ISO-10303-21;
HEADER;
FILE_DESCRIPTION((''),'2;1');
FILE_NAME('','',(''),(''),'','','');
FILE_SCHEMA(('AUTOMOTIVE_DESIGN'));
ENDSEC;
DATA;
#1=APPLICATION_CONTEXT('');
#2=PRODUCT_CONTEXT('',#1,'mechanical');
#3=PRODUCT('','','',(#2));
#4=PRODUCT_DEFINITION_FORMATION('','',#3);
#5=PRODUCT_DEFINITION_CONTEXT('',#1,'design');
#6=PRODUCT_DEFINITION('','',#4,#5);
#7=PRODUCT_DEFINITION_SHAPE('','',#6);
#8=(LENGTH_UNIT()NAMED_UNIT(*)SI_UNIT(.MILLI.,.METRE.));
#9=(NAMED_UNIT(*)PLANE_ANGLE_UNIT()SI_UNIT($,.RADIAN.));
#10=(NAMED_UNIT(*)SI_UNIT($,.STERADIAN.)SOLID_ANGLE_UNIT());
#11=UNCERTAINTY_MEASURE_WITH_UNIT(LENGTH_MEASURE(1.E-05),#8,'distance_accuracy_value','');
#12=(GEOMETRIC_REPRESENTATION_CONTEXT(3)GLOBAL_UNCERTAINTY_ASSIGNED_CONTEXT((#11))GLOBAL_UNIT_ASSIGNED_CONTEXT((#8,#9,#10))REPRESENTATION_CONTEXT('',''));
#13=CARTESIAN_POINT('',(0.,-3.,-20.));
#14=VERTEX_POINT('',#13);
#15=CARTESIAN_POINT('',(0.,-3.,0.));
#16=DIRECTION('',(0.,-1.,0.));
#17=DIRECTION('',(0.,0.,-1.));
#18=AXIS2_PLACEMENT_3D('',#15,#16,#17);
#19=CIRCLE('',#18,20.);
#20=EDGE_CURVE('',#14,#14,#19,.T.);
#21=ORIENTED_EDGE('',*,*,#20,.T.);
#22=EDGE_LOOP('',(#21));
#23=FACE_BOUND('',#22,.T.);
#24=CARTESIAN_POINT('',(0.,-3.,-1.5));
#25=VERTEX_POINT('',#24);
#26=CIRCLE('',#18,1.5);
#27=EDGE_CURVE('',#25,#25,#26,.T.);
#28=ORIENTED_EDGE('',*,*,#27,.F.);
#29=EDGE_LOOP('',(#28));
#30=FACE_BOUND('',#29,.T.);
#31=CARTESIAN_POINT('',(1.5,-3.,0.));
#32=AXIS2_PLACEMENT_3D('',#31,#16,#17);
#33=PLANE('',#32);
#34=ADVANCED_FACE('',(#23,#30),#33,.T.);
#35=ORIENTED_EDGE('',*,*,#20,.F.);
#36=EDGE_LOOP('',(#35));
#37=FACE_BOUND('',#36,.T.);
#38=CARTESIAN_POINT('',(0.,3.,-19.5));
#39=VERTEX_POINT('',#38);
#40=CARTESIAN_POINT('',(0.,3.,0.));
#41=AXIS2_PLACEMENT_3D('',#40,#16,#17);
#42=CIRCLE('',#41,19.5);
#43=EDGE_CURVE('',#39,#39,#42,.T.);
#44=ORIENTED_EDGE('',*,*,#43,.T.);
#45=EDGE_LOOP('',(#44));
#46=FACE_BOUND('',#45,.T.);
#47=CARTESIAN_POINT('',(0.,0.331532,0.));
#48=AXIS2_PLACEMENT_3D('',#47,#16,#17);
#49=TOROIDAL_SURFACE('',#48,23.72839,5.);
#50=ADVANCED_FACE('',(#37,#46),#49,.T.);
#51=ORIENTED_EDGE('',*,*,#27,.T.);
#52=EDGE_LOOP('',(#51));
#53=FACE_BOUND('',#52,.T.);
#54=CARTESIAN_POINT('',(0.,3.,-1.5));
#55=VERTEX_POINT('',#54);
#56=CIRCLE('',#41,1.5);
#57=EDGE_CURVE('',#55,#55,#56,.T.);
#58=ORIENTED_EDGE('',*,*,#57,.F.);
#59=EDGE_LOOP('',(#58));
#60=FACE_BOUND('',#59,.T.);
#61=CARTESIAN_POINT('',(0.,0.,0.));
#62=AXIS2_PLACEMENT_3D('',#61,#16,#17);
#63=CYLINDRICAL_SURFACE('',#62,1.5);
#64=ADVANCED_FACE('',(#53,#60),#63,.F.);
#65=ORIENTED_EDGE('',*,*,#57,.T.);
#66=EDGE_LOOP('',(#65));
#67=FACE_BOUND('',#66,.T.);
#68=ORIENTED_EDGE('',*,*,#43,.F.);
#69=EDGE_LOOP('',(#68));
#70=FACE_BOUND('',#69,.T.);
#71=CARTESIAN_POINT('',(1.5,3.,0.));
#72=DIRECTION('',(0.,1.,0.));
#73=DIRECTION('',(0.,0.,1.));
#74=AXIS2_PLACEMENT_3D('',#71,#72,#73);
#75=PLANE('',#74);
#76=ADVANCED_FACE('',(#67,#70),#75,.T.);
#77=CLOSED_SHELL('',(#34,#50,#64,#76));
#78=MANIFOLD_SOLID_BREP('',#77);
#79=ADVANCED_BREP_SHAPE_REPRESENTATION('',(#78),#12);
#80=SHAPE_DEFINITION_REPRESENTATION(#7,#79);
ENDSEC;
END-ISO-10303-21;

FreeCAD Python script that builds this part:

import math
import FreeCAD as App
import Part
import Sketcher

V = App.Vector
Q = App.Units.Quantity

doc = App.newDocument("Part")
body = doc.addObject("PartDesign::Body", "Body")

# Sketch on XY plane
sketch1 = doc.addObject("Sketcher::SketchObject", "Sketch")
body.addObject(sketch1)
sketch1.AttachmentSupport = (doc.XY_Plane, [""])
sketch1.MapMode = "FlatFace"
sketch1.addGeometry([
    Part.LineSegment(V(2, -3, 0), V(20, -3, 0)),
    Part.ArcOfCircle(Part.Circle(V(24, 0, 0), V(0, 0, 1), 5), math.radians(-138), math.radians(148)),
    Part.LineSegment(V(20, 3, 0), V(2, 3, 0)),
    Part.LineSegment(V(2, 3, 0), V(2, -3, 0)),
], False)
sketch1.addConstraint([
    Sketcher.Constraint("Coincident", 0, 2, 1, 1),
    Sketcher.Constraint("Coincident", 1, 2, 2, 1),
    Sketcher.Constraint("Coincident", 2, 2, 3, 1),
    Sketcher.Constraint("Coincident", 3, 2, 0, 1),
    Sketcher.Constraint("Horizontal", 0),
    Sketcher.Constraint("Horizontal", 2),
    Sketcher.Constraint("Vertical", 3),
    Sketcher.Constraint("Radius", 1, Q("5 mm")),
    Sketcher.Constraint("DistanceX", 2, 2, 2, 1, Q("18 mm")),
    Sketcher.Constraint("DistanceY", 3, 2, 3, 1, Q("6 mm")),
    Sketcher.Constraint("DistanceX", 0, 1, 0, 2, Q("18.5 mm")),
    Sketcher.Constraint("DistanceX", -1, 1, 0, 2, Q("20 mm")),
    Sketcher.Constraint("DistanceY", 0, 2, -1, 1, Q("3 mm")),
])
revolution = doc.addObject("PartDesign::Revolution", "Revolution")
body.addObject(revolution)
revolution.Profile = sketch1
revolution.ReferenceAxis = (sketch1, ["V_Axis"])
revolution.Angle = 360

doc.recompute()
